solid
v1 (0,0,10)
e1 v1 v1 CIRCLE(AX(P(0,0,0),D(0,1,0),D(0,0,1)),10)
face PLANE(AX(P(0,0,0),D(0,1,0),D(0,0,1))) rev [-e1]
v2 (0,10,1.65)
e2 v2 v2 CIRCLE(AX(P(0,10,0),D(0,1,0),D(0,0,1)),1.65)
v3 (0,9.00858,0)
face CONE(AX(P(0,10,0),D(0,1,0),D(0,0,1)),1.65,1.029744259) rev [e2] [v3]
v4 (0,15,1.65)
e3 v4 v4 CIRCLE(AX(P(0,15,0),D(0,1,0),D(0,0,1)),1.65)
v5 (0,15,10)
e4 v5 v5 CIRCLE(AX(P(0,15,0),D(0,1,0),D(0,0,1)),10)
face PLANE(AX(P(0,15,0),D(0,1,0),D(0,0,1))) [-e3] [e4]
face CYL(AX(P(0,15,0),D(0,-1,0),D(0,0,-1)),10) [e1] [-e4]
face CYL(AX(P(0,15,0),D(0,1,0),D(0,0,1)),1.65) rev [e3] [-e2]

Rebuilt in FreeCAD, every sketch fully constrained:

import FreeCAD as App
import Part
import Sketcher

V = App.Vector
Q = App.Units.Quantity

doc = App.newDocument("Part")
body = doc.addObject("PartDesign::Body", "Body")

# Sketch on XZ plane
sketch1 = doc.addObject("Sketcher::SketchObject", "Sketch")
body.addObject(sketch1)
sketch1.AttachmentSupport = (doc.XZ_Plane, [""])
sketch1.MapMode = "FlatFace"
sketch1.addGeometry(Part.Circle(V(0, 0, 0), V(0, 0, 1), 10), False)
sketch1.addConstraint([
    Sketcher.Constraint("Coincident", 0, 3, -1, 1),
    Sketcher.Constraint("Diameter", 0, Q("20 mm")),
])
pad1 = doc.addObject("PartDesign::Pad", "Pad")
body.addObject(pad1)
pad1.Profile = sketch1
pad1.Length = 15
pad1.Reversed = True

# Sketch on XZ plane
sketch2 = doc.addObject("Sketcher::SketchObject", "Sketch001")
body.addObject(sketch2)
sketch2.AttachmentSupport = (doc.XZ_Plane, [""])
sketch2.MapMode = "FlatFace"
sketch2.AttachmentOffset = App.Placement(V(0, 0, -15), App.Rotation())
sketch2.addGeometry(Part.Circle(V(0, 0, 0), V(0, 0, 1), 1.65), False)
sketch2.addConstraint([
    Sketcher.Constraint("Coincident", 0, 3, -1, 1),
    Sketcher.Constraint("Diameter", 0, Q("3.3 mm")),
])
doc.recompute()
hole = doc.addObject("PartDesign::Hole", "Hole")
body.addObject(hole)
hole.Profile = sketch2
hole.ThreadType = "None"
hole.Diameter = 3.3
hole.DepthType = "Dimension"
hole.Depth = 5
hole.DrillPoint = "Angled"
hole.DrillPointAngle = 118
hole.Reversed = True

doc.recompute()
